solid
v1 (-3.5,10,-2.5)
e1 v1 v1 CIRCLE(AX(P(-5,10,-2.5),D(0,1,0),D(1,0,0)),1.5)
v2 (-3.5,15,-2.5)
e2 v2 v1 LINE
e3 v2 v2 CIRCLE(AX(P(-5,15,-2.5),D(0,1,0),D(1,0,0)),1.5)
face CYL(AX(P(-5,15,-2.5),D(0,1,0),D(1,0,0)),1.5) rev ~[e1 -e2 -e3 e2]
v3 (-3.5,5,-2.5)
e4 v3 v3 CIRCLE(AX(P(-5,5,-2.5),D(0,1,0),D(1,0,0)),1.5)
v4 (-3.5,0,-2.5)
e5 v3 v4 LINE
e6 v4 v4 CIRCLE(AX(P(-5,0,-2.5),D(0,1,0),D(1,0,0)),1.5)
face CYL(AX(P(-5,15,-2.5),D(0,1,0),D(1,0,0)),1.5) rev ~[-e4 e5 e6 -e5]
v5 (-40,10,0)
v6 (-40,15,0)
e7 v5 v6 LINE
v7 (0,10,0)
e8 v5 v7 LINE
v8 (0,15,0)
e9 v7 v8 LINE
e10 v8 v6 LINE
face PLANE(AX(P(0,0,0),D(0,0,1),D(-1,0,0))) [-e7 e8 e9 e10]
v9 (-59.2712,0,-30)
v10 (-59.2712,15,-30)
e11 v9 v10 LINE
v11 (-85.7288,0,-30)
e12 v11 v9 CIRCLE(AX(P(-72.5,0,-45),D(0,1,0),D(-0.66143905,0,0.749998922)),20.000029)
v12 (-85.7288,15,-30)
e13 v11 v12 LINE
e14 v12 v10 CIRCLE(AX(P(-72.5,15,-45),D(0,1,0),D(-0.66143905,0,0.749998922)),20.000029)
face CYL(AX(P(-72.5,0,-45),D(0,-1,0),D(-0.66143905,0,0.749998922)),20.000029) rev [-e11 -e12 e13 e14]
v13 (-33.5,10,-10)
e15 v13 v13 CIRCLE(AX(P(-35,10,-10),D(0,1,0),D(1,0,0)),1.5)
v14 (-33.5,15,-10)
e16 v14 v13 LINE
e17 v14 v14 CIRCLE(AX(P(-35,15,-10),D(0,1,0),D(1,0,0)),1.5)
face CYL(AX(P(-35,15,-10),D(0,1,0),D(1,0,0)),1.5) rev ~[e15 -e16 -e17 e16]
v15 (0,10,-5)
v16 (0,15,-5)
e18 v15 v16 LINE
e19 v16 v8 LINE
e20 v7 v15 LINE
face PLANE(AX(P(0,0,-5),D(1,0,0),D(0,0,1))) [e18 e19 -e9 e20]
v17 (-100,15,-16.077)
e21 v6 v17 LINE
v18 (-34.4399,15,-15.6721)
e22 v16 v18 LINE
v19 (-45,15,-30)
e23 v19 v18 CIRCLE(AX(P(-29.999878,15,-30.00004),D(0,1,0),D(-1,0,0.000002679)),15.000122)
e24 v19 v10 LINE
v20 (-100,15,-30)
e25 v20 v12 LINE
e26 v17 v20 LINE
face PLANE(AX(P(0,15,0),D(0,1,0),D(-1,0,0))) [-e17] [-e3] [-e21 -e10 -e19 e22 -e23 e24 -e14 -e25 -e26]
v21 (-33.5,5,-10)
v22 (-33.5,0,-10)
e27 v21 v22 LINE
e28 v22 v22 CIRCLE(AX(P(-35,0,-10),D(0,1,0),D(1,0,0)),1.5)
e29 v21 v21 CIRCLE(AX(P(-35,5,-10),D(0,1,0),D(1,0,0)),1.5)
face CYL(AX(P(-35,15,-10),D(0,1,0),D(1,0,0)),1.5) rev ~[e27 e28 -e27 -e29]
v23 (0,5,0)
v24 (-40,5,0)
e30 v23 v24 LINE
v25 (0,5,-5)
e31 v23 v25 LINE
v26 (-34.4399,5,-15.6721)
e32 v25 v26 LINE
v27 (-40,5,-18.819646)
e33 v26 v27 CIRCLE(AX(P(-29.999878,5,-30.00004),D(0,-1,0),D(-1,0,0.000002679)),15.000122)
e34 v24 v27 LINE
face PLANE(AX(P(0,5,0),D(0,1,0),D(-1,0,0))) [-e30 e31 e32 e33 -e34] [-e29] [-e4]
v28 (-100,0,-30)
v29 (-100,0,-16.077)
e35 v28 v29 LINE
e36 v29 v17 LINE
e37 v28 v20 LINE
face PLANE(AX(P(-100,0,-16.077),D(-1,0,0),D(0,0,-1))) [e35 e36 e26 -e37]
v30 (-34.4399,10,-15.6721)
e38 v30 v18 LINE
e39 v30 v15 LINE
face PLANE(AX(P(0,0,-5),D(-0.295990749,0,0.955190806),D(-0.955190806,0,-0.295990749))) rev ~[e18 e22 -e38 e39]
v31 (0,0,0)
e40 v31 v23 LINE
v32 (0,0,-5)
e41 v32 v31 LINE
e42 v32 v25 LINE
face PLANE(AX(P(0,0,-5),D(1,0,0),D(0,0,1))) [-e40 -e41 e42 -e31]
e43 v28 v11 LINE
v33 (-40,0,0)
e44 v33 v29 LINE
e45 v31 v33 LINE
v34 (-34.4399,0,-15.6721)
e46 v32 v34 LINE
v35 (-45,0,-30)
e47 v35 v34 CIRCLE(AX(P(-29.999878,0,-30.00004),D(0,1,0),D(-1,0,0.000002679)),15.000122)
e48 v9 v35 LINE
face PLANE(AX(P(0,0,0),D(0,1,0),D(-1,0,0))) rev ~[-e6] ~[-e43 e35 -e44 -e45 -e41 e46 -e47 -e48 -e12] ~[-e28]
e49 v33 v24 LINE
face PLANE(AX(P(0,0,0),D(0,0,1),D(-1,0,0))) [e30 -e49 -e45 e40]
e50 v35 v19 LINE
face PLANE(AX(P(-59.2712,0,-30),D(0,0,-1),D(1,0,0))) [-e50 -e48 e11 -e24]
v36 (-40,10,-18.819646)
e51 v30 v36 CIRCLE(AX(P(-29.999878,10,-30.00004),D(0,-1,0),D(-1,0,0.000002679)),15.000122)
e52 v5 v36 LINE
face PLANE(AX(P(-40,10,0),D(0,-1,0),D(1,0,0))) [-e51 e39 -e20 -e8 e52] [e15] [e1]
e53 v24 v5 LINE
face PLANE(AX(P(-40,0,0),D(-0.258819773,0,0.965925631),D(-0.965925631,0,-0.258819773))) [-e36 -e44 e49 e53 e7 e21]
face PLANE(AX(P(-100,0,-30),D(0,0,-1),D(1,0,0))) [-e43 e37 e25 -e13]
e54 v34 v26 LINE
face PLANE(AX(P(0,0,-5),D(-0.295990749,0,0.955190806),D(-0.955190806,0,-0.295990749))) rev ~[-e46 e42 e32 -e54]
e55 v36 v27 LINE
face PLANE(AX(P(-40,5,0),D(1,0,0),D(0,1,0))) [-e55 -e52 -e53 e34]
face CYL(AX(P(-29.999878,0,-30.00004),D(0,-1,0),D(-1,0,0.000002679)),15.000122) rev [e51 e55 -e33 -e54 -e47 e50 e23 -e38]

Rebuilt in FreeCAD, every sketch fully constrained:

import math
import FreeCAD as App
import Part
import Sketcher

V = App.Vector
Q = App.Units.Quantity

doc = App.newDocument("Part")
body = doc.addObject("PartDesign::Body", "Body")

# Sketch on XZ plane
sketch1 = doc.addObject("Sketcher::SketchObject", "Sketch")
body.addObject(sketch1)
sketch1.AttachmentSupport = (doc.XZ_Plane, [""])
sketch1.MapMode = "FlatFace"
sketch1.addGeometry(Part.LineSegment(V(-100, -30, 0), V(-100, -16, 0)), False)
sketch1.addGeometry(Part.LineSegment(V(-100, -16, 0), V(-40, 0, 0)), False)
sketch1.addGeometry(Part.LineSegment(V(-40, 0, 0), V(0, 0, 0)), False)
sketch1.addGeometry(Part.LineSegment(V(0, 0, 0), V(0, -5, 0)), False)
sketch1.addGeometry(Part.LineSegment(V(0, -5, 0), V(-34, -16, 0)), False)
sketch1.addGeometry(Part.ArcOfCircle(Part.Circle(V(-30, -30, 0), V(0, 0, 1), 15), math.radians(107), math.radians(180)), False)
sketch1.addGeometry(Part.LineSegment(V(-45, -30, 0), V(-59, -30, 0)), False)
sketch1.addGeometry(Part.ArcOfCircle(Part.Circle(V(-72, -45, 0), V(0, 0, 1), 20), math.radians(49), math.radians(131)), False)
sketch1.addGeometry(Part.LineSegment(V(-86, -30, 0), V(-100, -30, 0)), False)
sketch1.addConstraint(Sketcher.Constraint("Coincident", 0, 2, 1, 1))
sketch1.addConstraint(Sketcher.Constraint("Coincident", 1, 2, 2, 1))
sketch1.addConstraint(Sketcher.Constraint("Coincident", 2, 2, 3, 1))
sketch1.addConstraint(Sketcher.Constraint("Coincident", 3, 2, 4, 1))
sketch1.addConstraint(Sketcher.Constraint("Tangent", 4, 2, 5, 1))
sketch1.addConstraint(Sketcher.Constraint("Coincident", 5, 2, 6, 1))
sketch1.addConstraint(Sketcher.Constraint("Coincident", 6, 2, 7, 1))
sketch1.addConstraint(Sketcher.Constraint("Coincident", 7, 2, 8, 1))
sketch1.addConstraint(Sketcher.Constraint("Coincident", 8, 2, 0, 1))
sketch1.addConstraint(Sketcher.Constraint("Vertical", 0))
sketch1.addConstraint(Sketcher.Constraint("Horizontal", 2))
sketch1.addConstraint(Sketcher.Constraint("Vertical", 3))
sketch1.addConstraint(Sketcher.Constraint("Horizontal", 6))
sketch1.addConstraint(Sketcher.Constraint("Horizontal", 8))
sketch1.addConstraint(Sketcher.Constraint("Coincident", 2, 2, -1, 1))
sketch1.addConstraint(Sketcher.Constraint("Horizontal", 6, 2, 7, 2))
sketch1.addConstraint(Sketcher.Constraint("Equal", 6, 8))
sketch1.addConstraint(Sketcher.Constraint("Radius", 5, 15.0))
sketch1.addConstraint(Sketcher.Constraint("Radius", 7, 20.0))
sketch1.addConstraint(Sketcher.Constraint("DistanceX", 2, 1, 2, 2, 40.0))
sketch1.addConstraint(Sketcher.Constraint("DistanceY", 3, 2, 3, 1, 5.0))
sketch1.addConstraint(Sketcher.Constraint("Angle", 1, Q("15 deg")))
sketch1.addConstraint(Sketcher.Constraint("DistanceX", 5, 3, -1, 1, 30.0))
sketch1.addConstraint(Sketcher.Constraint("DistanceY", 5, 3, -1, 1, 30.0))
sketch1.addConstraint(Sketcher.Constraint("DistanceY", 7, 3, -1, 1, 45.0))
sketch1.addConstraint(Sketcher.Constraint("DistanceX", 0, 2, -1, 1, 100.0))
sketch1.addConstraint(Sketcher.Constraint("DistanceY", 5, 2, -1, 1, 30.0))
pad1 = doc.addObject("PartDesign::Pad", "Pad")
body.addObject(pad1)
pad1.Profile = sketch1
pad1.Length = 15
pad1.Reversed = True

# Sketch on XZ plane
sketch2 = doc.addObject("Sketcher::SketchObject", "Sketch001")
body.addObject(sketch2)
sketch2.AttachmentSupport = (doc.XZ_Plane, [""])
sketch2.MapMode = "FlatFace"
sketch2.AttachmentOffset = App.Placement(V(0, 0, -15), App.Rotation())
sketch2.addGeometry(Part.Circle(V(-5, -2.5, 0), V(0, 0, 1), 1.5), False)
sketch2.addGeometry(Part.Circle(V(-35, -10, 0), V(0, 0, 1), 1.5), False)
sketch2.addConstraint(Sketcher.Constraint("Equal", 0, 1))
sketch2.addConstraint(Sketcher.Constraint("Diameter", 0, 3.0))
sketch2.addConstraint(Sketcher.Constraint("DistanceX", 0, 3, -1, 1, 5.0))
sketch2.addConstraint(Sketcher.Constraint("DistanceX", 1, 3, -1, 1, 35.0))
sketch2.addConstraint(Sketcher.Constraint("DistanceY", 1, 3, -1, 1, 10.0))
sketch2.addConstraint(Sketcher.Constraint("DistanceY", 0, 3, -1, 1, 2.5))
pocket1 = doc.addObject("PartDesign::Pocket", "Pocket")
body.addObject(pocket1)
pocket1.Profile = sketch2
pocket1.Length = 15
pocket1.Reversed = True

# Sketch on XY plane
sketch3 = doc.addObject("Sketcher::SketchObject", "Sketch002")
body.addObject(sketch3)
sketch3.AttachmentSupport = (doc.XY_Plane, [""])
sketch3.MapMode = "FlatFace"
sketch3.addGeometry(Part.LineSegment(V(-40, 5, 0), V(0, 5, 0)), False)
sketch3.addGeometry(Part.LineSegment(V(0, 5, 0), V(0, 10, 0)), False)
sketch3.addGeometry(Part.LineSegment(V(0, 10, 0), V(-40, 10, 0)), False)
sketch3.addGeometry(Part.LineSegment(V(-40, 10, 0), V(-40, 5, 0)), False)
sketch3.addConstraint(Sketcher.Constraint("Coincident", 0, 2, 1, 1))
sketch3.addConstraint(Sketcher.Constraint("Coincident", 1, 2, 2, 1))
sketch3.addConstraint(Sketcher.Constraint("Coincident", 2, 2, 3, 1))
sketch3.addConstraint(Sketcher.Constraint("Coincident", 3, 2, 0, 1))
sketch3.addConstraint(Sketcher.Constraint("Horizontal", 0))
sketch3.addConstraint(Sketcher.Constraint("Vertical", 1))
sketch3.addConstraint(Sketcher.Constraint("Horizontal", 2))
sketch3.addConstraint(Sketcher.Constraint("Vertical", 3))
sketch3.addConstraint(Sketcher.Constraint("PointOnObject", 0, 2, -2))
sketch3.addConstraint(Sketcher.Constraint("DistanceX", 0, 1, 0, 2, 40.0))
sketch3.addConstraint(Sketcher.Constraint("DistanceY", 1, 1, 1, 2, 5.0))
sketch3.addConstraint(Sketcher.Constraint("DistanceY", -1, 1, 0, 2, 5.0))
pocket2 = doc.addObject("PartDesign::Pocket", "Pocket001")
body.addObject(pocket2)
pocket2.Profile = sketch3
pocket2.Length = 44.75

doc.recompute()
